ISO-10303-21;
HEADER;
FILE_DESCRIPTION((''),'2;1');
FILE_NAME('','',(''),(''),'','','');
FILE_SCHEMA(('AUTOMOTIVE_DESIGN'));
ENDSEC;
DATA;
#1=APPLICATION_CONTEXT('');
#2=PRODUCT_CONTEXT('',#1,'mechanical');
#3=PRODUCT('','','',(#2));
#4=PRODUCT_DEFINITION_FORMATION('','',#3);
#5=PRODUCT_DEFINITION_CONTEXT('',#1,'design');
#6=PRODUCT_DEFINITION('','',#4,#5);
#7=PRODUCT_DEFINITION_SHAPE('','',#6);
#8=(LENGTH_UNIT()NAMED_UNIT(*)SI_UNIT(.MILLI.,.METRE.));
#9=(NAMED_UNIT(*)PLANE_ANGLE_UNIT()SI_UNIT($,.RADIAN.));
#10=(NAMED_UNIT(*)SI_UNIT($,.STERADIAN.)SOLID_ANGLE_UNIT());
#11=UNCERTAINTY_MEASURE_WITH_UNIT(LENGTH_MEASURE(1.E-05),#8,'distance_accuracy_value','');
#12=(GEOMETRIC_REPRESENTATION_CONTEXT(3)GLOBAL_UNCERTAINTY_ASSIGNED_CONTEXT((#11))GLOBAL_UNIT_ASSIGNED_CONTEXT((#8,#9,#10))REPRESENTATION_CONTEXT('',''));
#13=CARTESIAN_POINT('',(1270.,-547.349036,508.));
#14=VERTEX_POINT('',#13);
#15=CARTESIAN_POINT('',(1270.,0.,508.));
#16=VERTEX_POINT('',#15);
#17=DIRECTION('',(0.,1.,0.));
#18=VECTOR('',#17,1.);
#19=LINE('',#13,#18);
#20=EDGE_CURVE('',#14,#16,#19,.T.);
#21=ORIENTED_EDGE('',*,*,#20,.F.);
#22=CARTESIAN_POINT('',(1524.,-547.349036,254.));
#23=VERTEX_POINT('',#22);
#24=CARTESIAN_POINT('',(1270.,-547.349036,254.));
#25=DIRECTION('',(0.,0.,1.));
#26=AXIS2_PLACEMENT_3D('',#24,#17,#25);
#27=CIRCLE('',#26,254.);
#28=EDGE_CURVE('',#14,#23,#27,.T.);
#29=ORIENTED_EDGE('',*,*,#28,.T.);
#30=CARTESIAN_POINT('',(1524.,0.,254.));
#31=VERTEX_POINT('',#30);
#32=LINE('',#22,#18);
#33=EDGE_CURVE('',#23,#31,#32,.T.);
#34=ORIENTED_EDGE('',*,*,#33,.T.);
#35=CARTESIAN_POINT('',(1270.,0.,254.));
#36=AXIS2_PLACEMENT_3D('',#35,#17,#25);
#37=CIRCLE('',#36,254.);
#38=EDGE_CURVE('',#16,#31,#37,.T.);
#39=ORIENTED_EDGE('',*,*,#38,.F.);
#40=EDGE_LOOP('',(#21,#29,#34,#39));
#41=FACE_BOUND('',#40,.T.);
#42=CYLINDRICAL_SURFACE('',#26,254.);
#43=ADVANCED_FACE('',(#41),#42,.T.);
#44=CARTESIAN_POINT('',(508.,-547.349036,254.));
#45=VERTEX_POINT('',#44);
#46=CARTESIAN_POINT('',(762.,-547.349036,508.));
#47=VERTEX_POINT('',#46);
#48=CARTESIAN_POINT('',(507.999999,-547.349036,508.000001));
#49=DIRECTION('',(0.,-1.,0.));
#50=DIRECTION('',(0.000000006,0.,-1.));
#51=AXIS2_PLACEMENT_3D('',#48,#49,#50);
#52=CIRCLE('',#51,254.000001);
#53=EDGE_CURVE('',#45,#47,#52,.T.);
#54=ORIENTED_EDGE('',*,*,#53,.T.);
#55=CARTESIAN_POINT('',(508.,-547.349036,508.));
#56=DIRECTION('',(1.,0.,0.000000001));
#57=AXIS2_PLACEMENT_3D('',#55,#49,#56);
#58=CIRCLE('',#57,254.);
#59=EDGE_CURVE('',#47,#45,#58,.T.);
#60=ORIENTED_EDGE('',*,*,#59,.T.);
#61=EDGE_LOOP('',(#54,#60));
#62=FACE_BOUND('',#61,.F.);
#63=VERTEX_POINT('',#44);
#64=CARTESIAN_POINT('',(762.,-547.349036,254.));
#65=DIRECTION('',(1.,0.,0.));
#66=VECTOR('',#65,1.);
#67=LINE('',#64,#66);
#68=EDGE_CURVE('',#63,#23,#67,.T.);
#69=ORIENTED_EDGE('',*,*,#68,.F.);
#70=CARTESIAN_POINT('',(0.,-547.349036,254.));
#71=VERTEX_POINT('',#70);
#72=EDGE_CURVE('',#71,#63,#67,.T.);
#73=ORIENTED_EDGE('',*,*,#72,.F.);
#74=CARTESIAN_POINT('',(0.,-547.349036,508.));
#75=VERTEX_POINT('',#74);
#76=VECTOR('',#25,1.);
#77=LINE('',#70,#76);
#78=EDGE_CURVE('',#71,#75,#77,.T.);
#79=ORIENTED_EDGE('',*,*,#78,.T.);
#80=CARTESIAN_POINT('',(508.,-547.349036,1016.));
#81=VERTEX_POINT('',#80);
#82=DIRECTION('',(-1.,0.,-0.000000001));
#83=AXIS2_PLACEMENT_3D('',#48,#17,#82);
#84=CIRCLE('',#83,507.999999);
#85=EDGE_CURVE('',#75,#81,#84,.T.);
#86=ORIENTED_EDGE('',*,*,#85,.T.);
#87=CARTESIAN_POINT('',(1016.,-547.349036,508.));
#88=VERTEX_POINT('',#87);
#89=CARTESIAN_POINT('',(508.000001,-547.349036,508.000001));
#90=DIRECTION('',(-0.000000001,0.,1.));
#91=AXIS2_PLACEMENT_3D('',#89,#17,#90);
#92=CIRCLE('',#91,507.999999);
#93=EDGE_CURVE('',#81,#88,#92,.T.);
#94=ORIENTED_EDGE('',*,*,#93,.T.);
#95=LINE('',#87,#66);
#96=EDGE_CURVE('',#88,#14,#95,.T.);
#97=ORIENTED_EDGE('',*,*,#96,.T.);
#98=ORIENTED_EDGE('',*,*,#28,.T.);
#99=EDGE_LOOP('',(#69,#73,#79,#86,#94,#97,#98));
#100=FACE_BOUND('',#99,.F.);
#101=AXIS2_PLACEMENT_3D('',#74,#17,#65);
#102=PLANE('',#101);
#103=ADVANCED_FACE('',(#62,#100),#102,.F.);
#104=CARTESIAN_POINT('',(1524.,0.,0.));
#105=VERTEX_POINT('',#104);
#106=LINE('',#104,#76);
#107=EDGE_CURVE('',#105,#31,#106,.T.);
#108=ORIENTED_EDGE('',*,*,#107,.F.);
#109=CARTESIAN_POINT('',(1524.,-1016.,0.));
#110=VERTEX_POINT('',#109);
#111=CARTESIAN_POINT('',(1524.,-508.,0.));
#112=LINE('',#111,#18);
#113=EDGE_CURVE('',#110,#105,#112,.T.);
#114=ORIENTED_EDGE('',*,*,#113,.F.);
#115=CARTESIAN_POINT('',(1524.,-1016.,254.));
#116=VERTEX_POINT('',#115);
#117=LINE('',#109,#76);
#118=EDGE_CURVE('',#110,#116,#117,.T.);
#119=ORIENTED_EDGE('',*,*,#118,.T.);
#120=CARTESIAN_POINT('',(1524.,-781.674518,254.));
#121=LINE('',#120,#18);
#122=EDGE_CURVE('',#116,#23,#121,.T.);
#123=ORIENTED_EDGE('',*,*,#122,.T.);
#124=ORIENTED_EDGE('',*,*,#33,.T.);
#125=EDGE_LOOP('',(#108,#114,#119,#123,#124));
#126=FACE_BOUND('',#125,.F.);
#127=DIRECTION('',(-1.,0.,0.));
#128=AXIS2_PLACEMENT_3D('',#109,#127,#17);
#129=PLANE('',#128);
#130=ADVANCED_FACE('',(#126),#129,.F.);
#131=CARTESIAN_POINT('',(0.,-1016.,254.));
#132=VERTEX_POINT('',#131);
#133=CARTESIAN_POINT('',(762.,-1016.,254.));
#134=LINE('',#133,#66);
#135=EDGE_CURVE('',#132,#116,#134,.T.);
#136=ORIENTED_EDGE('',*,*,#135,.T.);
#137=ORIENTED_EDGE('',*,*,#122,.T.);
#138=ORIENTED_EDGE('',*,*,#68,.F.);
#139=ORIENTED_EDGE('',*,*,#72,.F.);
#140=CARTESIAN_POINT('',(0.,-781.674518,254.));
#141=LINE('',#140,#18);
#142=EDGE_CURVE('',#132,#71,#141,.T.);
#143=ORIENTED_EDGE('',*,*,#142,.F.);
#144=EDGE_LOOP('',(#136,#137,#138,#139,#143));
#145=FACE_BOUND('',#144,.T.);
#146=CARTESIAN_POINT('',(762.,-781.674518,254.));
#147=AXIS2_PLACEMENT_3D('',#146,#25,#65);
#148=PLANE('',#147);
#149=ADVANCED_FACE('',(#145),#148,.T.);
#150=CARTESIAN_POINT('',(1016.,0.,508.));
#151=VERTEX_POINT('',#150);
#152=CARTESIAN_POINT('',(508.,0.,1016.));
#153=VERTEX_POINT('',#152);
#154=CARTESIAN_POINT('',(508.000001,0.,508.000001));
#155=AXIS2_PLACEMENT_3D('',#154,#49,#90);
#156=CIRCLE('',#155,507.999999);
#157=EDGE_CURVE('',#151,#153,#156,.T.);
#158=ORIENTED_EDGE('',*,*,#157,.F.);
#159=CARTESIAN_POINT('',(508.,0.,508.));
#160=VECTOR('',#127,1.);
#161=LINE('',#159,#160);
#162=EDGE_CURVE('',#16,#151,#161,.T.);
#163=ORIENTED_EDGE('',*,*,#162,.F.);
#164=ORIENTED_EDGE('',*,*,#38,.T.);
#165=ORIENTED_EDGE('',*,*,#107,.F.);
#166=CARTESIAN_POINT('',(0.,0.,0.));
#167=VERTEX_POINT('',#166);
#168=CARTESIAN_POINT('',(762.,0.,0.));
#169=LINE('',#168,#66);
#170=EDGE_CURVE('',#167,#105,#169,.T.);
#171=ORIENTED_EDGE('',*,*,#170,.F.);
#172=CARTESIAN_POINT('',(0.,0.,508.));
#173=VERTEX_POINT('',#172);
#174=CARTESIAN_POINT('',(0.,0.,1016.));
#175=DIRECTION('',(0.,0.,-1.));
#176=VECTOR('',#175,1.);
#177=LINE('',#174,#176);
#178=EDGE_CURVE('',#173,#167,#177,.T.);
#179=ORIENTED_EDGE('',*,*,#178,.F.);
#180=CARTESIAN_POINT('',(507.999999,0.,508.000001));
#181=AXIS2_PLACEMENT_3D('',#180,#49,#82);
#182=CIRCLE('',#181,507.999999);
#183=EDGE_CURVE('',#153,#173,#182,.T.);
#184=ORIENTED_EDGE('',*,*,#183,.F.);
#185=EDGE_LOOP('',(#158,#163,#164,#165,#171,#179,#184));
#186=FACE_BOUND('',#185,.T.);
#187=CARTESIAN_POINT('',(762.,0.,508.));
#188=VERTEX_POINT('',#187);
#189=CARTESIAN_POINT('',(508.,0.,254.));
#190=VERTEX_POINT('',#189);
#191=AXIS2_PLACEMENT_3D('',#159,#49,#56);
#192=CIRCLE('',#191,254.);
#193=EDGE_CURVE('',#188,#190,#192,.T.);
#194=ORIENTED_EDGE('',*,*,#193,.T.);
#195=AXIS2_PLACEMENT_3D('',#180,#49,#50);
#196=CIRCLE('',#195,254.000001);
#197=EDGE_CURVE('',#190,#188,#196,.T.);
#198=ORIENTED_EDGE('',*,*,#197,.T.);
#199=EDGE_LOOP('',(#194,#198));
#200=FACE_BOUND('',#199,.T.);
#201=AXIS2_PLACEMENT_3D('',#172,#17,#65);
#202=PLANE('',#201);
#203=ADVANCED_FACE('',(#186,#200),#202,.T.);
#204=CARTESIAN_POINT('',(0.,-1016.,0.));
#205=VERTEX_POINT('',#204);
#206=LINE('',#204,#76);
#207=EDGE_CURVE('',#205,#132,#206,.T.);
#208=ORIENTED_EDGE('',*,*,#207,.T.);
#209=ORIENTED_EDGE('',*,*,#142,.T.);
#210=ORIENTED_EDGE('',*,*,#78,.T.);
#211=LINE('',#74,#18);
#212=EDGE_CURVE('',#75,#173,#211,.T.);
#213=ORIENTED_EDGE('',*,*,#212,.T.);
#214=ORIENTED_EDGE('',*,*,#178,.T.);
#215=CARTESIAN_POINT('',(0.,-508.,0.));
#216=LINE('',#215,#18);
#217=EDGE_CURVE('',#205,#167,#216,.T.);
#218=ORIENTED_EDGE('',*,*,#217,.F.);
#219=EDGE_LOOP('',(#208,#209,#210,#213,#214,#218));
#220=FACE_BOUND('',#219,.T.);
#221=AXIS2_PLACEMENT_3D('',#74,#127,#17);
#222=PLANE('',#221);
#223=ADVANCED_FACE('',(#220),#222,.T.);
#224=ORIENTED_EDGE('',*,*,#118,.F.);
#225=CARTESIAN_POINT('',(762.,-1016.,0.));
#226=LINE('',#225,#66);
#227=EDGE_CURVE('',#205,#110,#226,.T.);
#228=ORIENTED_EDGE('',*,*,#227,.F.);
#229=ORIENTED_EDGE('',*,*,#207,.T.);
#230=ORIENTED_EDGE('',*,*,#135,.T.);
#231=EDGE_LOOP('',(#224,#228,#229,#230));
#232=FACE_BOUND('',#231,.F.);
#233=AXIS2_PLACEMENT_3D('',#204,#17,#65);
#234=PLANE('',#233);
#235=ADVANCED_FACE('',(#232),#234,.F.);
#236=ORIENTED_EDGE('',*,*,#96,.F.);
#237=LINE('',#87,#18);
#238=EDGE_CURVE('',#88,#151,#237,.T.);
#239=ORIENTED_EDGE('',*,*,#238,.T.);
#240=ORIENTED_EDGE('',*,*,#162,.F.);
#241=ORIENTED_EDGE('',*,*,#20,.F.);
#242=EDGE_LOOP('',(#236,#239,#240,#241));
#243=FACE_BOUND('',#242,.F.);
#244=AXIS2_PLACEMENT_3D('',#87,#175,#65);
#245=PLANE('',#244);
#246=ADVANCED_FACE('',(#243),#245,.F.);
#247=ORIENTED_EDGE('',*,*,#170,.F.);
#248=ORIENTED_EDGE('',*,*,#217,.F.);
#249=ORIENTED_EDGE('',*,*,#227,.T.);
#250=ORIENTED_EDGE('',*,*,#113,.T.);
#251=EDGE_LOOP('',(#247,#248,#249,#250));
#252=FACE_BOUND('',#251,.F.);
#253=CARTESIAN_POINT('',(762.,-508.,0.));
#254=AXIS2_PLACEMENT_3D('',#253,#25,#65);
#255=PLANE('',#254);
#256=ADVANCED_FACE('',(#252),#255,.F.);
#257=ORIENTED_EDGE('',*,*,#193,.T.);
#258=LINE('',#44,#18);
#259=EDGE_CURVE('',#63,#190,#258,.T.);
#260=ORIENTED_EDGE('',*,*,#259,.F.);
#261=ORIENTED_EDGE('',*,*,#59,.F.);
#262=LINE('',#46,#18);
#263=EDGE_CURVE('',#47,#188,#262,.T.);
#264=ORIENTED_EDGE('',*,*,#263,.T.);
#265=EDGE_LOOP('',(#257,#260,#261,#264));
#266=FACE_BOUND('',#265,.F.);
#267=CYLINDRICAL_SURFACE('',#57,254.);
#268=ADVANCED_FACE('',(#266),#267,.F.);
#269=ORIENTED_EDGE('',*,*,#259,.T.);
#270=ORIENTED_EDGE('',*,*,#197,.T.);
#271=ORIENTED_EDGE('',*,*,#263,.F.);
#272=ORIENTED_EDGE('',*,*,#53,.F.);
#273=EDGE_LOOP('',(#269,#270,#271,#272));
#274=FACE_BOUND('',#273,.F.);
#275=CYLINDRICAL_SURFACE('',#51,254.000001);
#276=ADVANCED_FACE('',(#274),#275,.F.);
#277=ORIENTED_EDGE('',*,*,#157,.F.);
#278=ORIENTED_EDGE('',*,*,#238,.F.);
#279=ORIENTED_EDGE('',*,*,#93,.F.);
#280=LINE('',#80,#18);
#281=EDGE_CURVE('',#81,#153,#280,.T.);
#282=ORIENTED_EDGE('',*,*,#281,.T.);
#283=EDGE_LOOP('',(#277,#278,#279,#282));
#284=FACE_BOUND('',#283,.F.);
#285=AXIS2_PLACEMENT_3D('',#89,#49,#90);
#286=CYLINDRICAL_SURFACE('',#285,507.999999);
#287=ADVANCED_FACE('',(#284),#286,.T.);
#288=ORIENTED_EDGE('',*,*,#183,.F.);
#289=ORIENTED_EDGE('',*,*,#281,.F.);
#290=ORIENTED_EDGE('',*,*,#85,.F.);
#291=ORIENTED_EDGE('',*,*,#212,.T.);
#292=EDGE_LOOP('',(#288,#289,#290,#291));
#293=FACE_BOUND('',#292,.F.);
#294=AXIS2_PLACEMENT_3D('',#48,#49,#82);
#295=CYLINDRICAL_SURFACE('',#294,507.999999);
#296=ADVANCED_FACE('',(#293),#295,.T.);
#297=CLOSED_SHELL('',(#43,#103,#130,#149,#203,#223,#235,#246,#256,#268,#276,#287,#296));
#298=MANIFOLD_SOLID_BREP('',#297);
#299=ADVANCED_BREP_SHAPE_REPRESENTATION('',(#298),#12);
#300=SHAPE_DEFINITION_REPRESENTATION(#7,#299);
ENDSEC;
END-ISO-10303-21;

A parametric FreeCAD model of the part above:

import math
import FreeCAD as App
import Part
import Sketcher
Q = App.Units.Quantity


def edges_at(feature, points):
    """Names of the edges that pass closest to the given points."""
    edges = feature.Shape.Edges
    near = lambda p: min(range(len(edges)), key=lambda i: edges[i].distToShape(Part.Vertex(*p))[0])
    return sorted({f"Edge{near(p) + 1}" for p in points})

doc = App.newDocument("Part")
body = doc.addObject("PartDesign::Body", "Body")

# Sketch on XY plane
sketch1 = body.newObject("Sketcher::SketchObject", "Sketch")
sketch1.AttachmentSupport = (doc.getObject("XY_Plane"), [""])
sketch1.MapMode = "FlatFace"
sketch1.addGeometry([
    Part.LineSegment(App.Vector(0, 0, 0), App.Vector(0, -1016, 0)),
    Part.LineSegment(App.Vector(0, -1016, 0), App.Vector(1524, -1016, 0)),
    Part.LineSegment(App.Vector(1524, -1016, 0), App.Vector(1524, 0, 0)),
    Part.LineSegment(App.Vector(1524, 0, 0), App.Vector(0, 0, 0)),
], False)
sketch1.addConstraint([
    Sketcher.Constraint("Coincident", 0, 2, 1, 1),
    Sketcher.Constraint("Coincident", 1, 2, 2, 1),
    Sketcher.Constraint("Coincident", 2, 2, 3, 1),
    Sketcher.Constraint("Coincident", 3, 2, 0, 1),
    Sketcher.Constraint("Vertical", 0),
    Sketcher.Constraint("Horizontal", 1),
    Sketcher.Constraint("Vertical", 2),
    Sketcher.Constraint("Horizontal", 3),
    Sketcher.Constraint("Coincident", 3, 2, -1, 1),
    Sketcher.Constraint("DistanceX", 1, 1, 1, 2, Q("60 in")),
    Sketcher.Constraint("DistanceY", 0, 2, 0, 1, Q("40 in")),
])
pad1 = body.newObject("PartDesign::Pad", "Pad")
pad1.Profile = sketch1
pad1.Length = Q("20 in")

# Sketch on XY plane
sketch2 = body.newObject("Sketcher::SketchObject", "Sketch001")
sketch2.AttachmentSupport = (doc.getObject("XY_Plane"), [""])
sketch2.MapMode = "FlatFace"
sketch2.AttachmentOffset = App.Placement(App.Vector(0, 0, 20 * 25.4), App.Rotation())
sketch2.addGeometry([
    Part.LineSegment(App.Vector(0, -547.349036, 0), App.Vector(0, -1016, 0)),
    Part.LineSegment(App.Vector(0, -1016, 0), App.Vector(1524, -1016, 0)),
    Part.LineSegment(App.Vector(1524, -1016, 0), App.Vector(1524, -547.349036, 0)),
    Part.LineSegment(App.Vector(1524, -547.349036, 0), App.Vector(0, -547.349036, 0)),
], False)
sketch2.addConstraint([
    Sketcher.Constraint("Coincident", 0, 2, 1, 1),
    Sketcher.Constraint("Coincident", 1, 2, 2, 1),
    Sketcher.Constraint("Coincident", 2, 2, 3, 1),
    Sketcher.Constraint("Coincident", 3, 2, 0, 1),
    Sketcher.Constraint("Vertical", 0),
    Sketcher.Constraint("Horizontal", 1),
    Sketcher.Constraint("Vertical", 2),
    Sketcher.Constraint("Horizontal", 3),
    Sketcher.Constraint("PointOnObject", 0, 2, -2),
    Sketcher.Constraint("DistanceX", 1, 1, 1, 2, Q("60 in")),
    Sketcher.Constraint("DistanceY", 0, 2, -1, 1, Q("40 in")),
    Sketcher.Constraint("DistanceY", 0, 2, 0, 1, 468.650964),
])
pocket1 = body.newObject("PartDesign::Pocket", "Pocket")
pocket1.Profile = sketch2
pocket1.Length = Q("10 in")
doc.recompute()

fillet = body.newObject("PartDesign::Fillet", "Fillet")
fillet.Base = (pocket1, edges_at(pocket1, [(1524, -273.675, 508)]))
fillet.Radius = Q("10 in")

# Sketch on XY plane
sketch3 = body.newObject("Sketcher::SketchObject", "Sketch002")
sketch3.AttachmentSupport = (doc.getObject("XY_Plane"), [""])
sketch3.MapMode = "FlatFace"
sketch3.AttachmentOffset = App.Placement(App.Vector(0, 0, 20 * 25.4), App.Rotation())
sketch3.addGeometry([
    Part.LineSegment(App.Vector(0, 0, 0), App.Vector(0, -547.349036, 0)),
    Part.LineSegment(App.Vector(0, -547.349036, 0), App.Vector(1270, -547.349036, 0)),
    Part.LineSegment(App.Vector(1270, -547.349036, 0), App.Vector(1270, 0, 0)),
    Part.LineSegment(App.Vector(1270, 0, 0), App.Vector(0, 0, 0)),
], False)
sketch3.addConstraint([
    Sketcher.Constraint("Coincident", 0, 2, 1, 1),
    Sketcher.Constraint("Coincident", 1, 2, 2, 1),
    Sketcher.Constraint("Coincident", 2, 2, 3, 1),
    Sketcher.Constraint("Coincident", 3, 2, 0, 1),
    Sketcher.Constraint("Vertical", 0),
    Sketcher.Constraint("Horizontal", 1),
    Sketcher.Constraint("Vertical", 2),
    Sketcher.Constraint("Horizontal", 3),
    Sketcher.Constraint("Coincident", 3, 2, -1, 1),
    Sketcher.Constraint("DistanceX", 1, 1, 1, 2, Q("50 in")),
    Sketcher.Constraint("DistanceY", 0, 2, 0, 1, 547.349036),
])
pad2 = body.newObject("PartDesign::Pad", "Pad001")
pad2.Profile = sketch3
pad2.Length = Q("20 in")

# Sketch on XZ plane
sketch4 = body.newObject("Sketcher::SketchObject", "Sketch003")
sketch4.AttachmentSupport = (doc.getObject("XZ_Plane"), [""])
sketch4.MapMode = "FlatFace"
sketch4.AttachmentOffset = App.Placement(App.Vector(0, 0, 547.349036), App.Rotation())
sketch4.addGeometry([
    Part.LineSegment(App.Vector(0, 1016, 0), App.Vector(0, 508, 0)),  # 0
    Part.ArcOfCircle(Part.Circle(App.Vector(507.999999, 508.000001, 0), App.Vector(0, 0, 1), 507.999999), math.radians(90), math.radians(180)),  # 1
    Part.LineSegment(App.Vector(508, 1016, 0), App.Vector(0, 1016, 0)),  # 2
    Part.ArcOfCircle(Part.Circle(App.Vector(508.000001, 508.000001, 0), App.Vector(0, 0, 1), 507.999999), math.radians(0), math.radians(90)),  # 3
    Part.LineSegment(App.Vector(1016, 508, 0), App.Vector(1270, 508, 0)),  # 4
    Part.LineSegment(App.Vector(1270, 508, 0), App.Vector(1270, 1016, 0)),  # 5
    Part.LineSegment(App.Vector(1270, 1016, 0), App.Vector(508, 1016, 0)),  # 6
], False)
sketch4.addConstraint([
    Sketcher.Constraint("Tangent", 0, 2, 1, 2),
    Sketcher.Constraint("Tangent", 1, 1, 2, 1),
    Sketcher.Constraint("Coincident", 2, 2, 0, 1),
    Sketcher.Constraint("Coincident", 3, 1, 4, 1),
    Sketcher.Constraint("Coincident", 4, 2, 5, 1),
    Sketcher.Constraint("Coincident", 5, 2, 6, 1),
    Sketcher.Constraint("Tangent", 6, 2, 3, 2),
    Sketcher.Constraint("Vertical", 0),
    Sketcher.Constraint("Horizontal", 2),
    Sketcher.Constraint("Horizontal", 4),
    Sketcher.Constraint("Vertical", 5),
    Sketcher.Constraint("Horizontal", 6),
    Sketcher.Constraint("Coincident", 3, 3, 1, 3),
    Sketcher.Constraint("Equal", 1, 3),
    Sketcher.Constraint("PointOnObject", 0, 2, -2),
    Sketcher.Constraint("Equal", 0, 5),
    Sketcher.Constraint("Radius", 1, Q("20 in")),
    Sketcher.Constraint("DistanceX", 4, 1, 4, 2, Q("10 in")),
    Sketcher.Constraint("DistanceY", -1, 1, 1, 3, Q("20 in")),
])
pocket2 = body.newObject("PartDesign::Pocket", "Pocket001")
pocket2.Profile = sketch4
pocket2.Length = Q("45 in")

# Sketch on XZ plane
sketch5 = body.newObject("Sketcher::SketchObject", "Sketch004")
sketch5.AttachmentSupport = (doc.getObject("XZ_Plane"), [""])
sketch5.MapMode = "FlatFace"
sketch5.AttachmentOffset = App.Placement(App.Vector(0, 0, 547.349036), App.Rotation())
sketch5.addGeometry([
    Part.ArcOfCircle(Part.Circle(App.Vector(507.999999, 508.000001, 0), App.Vector(0, 0, 1), 254.000001), math.radians(-90), math.radians(0)),
    Part.ArcOfCircle(Part.Circle(App.Vector(508, 508, 0), App.Vector(0, 0, 1), 254), math.radians(0), math.radians(270)),
], False)
sketch5.addConstraint([
    Sketcher.Constraint("Tangent", 0, 1, 1, 2),
    Sketcher.Constraint("Coincident", 1, 1, 0, 2),
    Sketcher.Constraint("Horizontal", 0, 3, 1, 1),
    Sketcher.Constraint("Vertical", 1, 3, 0, 1),
    Sketcher.Constraint("Radius", 0, Q("10.0000001 in")),
    Sketcher.Constraint("DistanceX", -1, 1, 0, 3, Q("19.9999999 in")),
    Sketcher.Constraint("DistanceY", -1, 1, 0, 3, Q("20.0000001 in")),
])
pocket3 = body.newObject("PartDesign::Pocket", "Pocket002")
pocket3.Profile = sketch5
pocket3.Length = Q("45 in")

doc.recompute()
